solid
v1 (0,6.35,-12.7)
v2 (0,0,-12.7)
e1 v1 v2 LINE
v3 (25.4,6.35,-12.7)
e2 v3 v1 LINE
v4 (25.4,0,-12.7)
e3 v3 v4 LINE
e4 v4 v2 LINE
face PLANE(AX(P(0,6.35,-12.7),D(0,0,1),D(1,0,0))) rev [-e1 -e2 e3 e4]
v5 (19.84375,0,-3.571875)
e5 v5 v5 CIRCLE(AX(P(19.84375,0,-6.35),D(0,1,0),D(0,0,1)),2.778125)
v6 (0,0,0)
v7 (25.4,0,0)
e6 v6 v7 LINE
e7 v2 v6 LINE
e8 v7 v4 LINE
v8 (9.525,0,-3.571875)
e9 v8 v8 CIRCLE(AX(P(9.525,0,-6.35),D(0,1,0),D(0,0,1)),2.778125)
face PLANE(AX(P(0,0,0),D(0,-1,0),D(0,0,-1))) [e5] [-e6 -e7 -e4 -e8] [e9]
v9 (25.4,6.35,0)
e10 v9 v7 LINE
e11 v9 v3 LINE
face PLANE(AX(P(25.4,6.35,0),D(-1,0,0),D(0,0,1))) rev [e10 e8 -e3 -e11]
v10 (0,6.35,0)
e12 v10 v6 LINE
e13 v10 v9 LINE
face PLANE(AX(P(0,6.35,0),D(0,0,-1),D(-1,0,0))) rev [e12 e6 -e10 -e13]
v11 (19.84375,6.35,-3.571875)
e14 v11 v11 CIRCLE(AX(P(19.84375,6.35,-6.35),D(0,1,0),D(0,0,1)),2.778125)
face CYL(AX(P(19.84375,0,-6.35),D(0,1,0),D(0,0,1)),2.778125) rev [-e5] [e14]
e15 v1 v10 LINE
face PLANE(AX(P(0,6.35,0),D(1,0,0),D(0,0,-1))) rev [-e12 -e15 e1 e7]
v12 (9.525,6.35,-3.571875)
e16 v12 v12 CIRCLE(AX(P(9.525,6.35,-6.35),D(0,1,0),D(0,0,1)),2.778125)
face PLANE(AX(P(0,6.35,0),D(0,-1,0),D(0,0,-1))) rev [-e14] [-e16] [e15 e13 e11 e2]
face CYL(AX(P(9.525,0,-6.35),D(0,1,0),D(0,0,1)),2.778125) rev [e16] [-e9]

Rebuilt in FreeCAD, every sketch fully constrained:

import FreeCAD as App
import Part
import Sketcher

V = App.Vector
Q = App.Units.Quantity


def add_polygon(sketch, points):
    """Adds a closed chain of lines whose ends are joined by coincident constraints."""
    first, n = sketch.GeometryCount, len(points)
    for a, b in zip(points, points[1:] + points[:1]):
        sketch.addGeometry(Part.LineSegment(App.Vector(*a, 0), App.Vector(*b, 0)), False)
    for i in range(n):
        sketch.addConstraint(Sketcher.Constraint("Coincident", first + i, 2, first + (i + 1) % n, 1))

doc = App.newDocument("Part")
body = doc.addObject("PartDesign::Body", "Body")

# Sketch on XZ plane
sketch1 = body.newObject("Sketcher::SketchObject", "Sketch")
sketch1.AttachmentSupport = (doc.getObject("XZ_Plane"), [""])
sketch1.MapMode = "FlatFace"
add_polygon(sketch1, [(0, -13), (0, 0), (25, 0), (25, -13)])  # lines 0-3
sketch1.addConstraint(Sketcher.Constraint("Vertical", 0))
sketch1.addConstraint(Sketcher.Constraint("Horizontal", 1))
sketch1.addConstraint(Sketcher.Constraint("Vertical", 2))
sketch1.addConstraint(Sketcher.Constraint("Horizontal", 3))
sketch1.addConstraint(Sketcher.Constraint("Coincident", 0, 2, -1, 1))
sketch1.addConstraint(Sketcher.Constraint("DistanceX", 1, 1, 1, 2, Q("1 in")))
sketch1.addConstraint(Sketcher.Constraint("DistanceY", 0, 1, 0, 2, Q("0.5 in")))
pad1 = body.newObject("PartDesign::Pad", "Pad")
pad1.Profile = sketch1
pad1.Length = Q("0.25 in")
pad1.Reversed = True

# Sketch on XZ plane
sketch2 = body.newObject("Sketcher::SketchObject", "Sketch001")
sketch2.AttachmentSupport = (doc.getObject("XZ_Plane"), [""])
sketch2.MapMode = "FlatFace"
sketch2.AttachmentOffset = App.Placement(V(0, 0, -0.25 * 25.4), App.Rotation())
sketch2.addGeometry(Part.Circle(V(19.8, -6.3, 0), V(0, 0, 1), 2.8), False)
sketch2.addGeometry(Part.Circle(V(9.5, -6.3, 0), V(0, 0, 1), 2.8), False)
sketch2.addConstraint(Sketcher.Constraint("Equal", 0, 1))
sketch2.addConstraint(Sketcher.Constraint("Horizontal", 0, 3, 1, 3))
sketch2.addConstraint(Sketcher.Constraint("Diameter", 0, Q("0.21875 in")))
sketch2.addConstraint(Sketcher.Constraint("DistanceY", 0, 3, -1, 1, Q("0.25 in")))
sketch2.addConstraint(Sketcher.Constraint("DistanceX", -1, 1, 0, 3, Q("0.78125 in")))
sketch2.addConstraint(Sketcher.Constraint("DistanceX", -1, 1, 1, 3, Q("0.375 in")))
pocket1 = body.newObject("PartDesign::Pocket", "Pocket")
pocket1.Profile = sketch2
pocket1.Length = Q("0.25 in")
pocket1.Reversed = True

doc.recompute()
